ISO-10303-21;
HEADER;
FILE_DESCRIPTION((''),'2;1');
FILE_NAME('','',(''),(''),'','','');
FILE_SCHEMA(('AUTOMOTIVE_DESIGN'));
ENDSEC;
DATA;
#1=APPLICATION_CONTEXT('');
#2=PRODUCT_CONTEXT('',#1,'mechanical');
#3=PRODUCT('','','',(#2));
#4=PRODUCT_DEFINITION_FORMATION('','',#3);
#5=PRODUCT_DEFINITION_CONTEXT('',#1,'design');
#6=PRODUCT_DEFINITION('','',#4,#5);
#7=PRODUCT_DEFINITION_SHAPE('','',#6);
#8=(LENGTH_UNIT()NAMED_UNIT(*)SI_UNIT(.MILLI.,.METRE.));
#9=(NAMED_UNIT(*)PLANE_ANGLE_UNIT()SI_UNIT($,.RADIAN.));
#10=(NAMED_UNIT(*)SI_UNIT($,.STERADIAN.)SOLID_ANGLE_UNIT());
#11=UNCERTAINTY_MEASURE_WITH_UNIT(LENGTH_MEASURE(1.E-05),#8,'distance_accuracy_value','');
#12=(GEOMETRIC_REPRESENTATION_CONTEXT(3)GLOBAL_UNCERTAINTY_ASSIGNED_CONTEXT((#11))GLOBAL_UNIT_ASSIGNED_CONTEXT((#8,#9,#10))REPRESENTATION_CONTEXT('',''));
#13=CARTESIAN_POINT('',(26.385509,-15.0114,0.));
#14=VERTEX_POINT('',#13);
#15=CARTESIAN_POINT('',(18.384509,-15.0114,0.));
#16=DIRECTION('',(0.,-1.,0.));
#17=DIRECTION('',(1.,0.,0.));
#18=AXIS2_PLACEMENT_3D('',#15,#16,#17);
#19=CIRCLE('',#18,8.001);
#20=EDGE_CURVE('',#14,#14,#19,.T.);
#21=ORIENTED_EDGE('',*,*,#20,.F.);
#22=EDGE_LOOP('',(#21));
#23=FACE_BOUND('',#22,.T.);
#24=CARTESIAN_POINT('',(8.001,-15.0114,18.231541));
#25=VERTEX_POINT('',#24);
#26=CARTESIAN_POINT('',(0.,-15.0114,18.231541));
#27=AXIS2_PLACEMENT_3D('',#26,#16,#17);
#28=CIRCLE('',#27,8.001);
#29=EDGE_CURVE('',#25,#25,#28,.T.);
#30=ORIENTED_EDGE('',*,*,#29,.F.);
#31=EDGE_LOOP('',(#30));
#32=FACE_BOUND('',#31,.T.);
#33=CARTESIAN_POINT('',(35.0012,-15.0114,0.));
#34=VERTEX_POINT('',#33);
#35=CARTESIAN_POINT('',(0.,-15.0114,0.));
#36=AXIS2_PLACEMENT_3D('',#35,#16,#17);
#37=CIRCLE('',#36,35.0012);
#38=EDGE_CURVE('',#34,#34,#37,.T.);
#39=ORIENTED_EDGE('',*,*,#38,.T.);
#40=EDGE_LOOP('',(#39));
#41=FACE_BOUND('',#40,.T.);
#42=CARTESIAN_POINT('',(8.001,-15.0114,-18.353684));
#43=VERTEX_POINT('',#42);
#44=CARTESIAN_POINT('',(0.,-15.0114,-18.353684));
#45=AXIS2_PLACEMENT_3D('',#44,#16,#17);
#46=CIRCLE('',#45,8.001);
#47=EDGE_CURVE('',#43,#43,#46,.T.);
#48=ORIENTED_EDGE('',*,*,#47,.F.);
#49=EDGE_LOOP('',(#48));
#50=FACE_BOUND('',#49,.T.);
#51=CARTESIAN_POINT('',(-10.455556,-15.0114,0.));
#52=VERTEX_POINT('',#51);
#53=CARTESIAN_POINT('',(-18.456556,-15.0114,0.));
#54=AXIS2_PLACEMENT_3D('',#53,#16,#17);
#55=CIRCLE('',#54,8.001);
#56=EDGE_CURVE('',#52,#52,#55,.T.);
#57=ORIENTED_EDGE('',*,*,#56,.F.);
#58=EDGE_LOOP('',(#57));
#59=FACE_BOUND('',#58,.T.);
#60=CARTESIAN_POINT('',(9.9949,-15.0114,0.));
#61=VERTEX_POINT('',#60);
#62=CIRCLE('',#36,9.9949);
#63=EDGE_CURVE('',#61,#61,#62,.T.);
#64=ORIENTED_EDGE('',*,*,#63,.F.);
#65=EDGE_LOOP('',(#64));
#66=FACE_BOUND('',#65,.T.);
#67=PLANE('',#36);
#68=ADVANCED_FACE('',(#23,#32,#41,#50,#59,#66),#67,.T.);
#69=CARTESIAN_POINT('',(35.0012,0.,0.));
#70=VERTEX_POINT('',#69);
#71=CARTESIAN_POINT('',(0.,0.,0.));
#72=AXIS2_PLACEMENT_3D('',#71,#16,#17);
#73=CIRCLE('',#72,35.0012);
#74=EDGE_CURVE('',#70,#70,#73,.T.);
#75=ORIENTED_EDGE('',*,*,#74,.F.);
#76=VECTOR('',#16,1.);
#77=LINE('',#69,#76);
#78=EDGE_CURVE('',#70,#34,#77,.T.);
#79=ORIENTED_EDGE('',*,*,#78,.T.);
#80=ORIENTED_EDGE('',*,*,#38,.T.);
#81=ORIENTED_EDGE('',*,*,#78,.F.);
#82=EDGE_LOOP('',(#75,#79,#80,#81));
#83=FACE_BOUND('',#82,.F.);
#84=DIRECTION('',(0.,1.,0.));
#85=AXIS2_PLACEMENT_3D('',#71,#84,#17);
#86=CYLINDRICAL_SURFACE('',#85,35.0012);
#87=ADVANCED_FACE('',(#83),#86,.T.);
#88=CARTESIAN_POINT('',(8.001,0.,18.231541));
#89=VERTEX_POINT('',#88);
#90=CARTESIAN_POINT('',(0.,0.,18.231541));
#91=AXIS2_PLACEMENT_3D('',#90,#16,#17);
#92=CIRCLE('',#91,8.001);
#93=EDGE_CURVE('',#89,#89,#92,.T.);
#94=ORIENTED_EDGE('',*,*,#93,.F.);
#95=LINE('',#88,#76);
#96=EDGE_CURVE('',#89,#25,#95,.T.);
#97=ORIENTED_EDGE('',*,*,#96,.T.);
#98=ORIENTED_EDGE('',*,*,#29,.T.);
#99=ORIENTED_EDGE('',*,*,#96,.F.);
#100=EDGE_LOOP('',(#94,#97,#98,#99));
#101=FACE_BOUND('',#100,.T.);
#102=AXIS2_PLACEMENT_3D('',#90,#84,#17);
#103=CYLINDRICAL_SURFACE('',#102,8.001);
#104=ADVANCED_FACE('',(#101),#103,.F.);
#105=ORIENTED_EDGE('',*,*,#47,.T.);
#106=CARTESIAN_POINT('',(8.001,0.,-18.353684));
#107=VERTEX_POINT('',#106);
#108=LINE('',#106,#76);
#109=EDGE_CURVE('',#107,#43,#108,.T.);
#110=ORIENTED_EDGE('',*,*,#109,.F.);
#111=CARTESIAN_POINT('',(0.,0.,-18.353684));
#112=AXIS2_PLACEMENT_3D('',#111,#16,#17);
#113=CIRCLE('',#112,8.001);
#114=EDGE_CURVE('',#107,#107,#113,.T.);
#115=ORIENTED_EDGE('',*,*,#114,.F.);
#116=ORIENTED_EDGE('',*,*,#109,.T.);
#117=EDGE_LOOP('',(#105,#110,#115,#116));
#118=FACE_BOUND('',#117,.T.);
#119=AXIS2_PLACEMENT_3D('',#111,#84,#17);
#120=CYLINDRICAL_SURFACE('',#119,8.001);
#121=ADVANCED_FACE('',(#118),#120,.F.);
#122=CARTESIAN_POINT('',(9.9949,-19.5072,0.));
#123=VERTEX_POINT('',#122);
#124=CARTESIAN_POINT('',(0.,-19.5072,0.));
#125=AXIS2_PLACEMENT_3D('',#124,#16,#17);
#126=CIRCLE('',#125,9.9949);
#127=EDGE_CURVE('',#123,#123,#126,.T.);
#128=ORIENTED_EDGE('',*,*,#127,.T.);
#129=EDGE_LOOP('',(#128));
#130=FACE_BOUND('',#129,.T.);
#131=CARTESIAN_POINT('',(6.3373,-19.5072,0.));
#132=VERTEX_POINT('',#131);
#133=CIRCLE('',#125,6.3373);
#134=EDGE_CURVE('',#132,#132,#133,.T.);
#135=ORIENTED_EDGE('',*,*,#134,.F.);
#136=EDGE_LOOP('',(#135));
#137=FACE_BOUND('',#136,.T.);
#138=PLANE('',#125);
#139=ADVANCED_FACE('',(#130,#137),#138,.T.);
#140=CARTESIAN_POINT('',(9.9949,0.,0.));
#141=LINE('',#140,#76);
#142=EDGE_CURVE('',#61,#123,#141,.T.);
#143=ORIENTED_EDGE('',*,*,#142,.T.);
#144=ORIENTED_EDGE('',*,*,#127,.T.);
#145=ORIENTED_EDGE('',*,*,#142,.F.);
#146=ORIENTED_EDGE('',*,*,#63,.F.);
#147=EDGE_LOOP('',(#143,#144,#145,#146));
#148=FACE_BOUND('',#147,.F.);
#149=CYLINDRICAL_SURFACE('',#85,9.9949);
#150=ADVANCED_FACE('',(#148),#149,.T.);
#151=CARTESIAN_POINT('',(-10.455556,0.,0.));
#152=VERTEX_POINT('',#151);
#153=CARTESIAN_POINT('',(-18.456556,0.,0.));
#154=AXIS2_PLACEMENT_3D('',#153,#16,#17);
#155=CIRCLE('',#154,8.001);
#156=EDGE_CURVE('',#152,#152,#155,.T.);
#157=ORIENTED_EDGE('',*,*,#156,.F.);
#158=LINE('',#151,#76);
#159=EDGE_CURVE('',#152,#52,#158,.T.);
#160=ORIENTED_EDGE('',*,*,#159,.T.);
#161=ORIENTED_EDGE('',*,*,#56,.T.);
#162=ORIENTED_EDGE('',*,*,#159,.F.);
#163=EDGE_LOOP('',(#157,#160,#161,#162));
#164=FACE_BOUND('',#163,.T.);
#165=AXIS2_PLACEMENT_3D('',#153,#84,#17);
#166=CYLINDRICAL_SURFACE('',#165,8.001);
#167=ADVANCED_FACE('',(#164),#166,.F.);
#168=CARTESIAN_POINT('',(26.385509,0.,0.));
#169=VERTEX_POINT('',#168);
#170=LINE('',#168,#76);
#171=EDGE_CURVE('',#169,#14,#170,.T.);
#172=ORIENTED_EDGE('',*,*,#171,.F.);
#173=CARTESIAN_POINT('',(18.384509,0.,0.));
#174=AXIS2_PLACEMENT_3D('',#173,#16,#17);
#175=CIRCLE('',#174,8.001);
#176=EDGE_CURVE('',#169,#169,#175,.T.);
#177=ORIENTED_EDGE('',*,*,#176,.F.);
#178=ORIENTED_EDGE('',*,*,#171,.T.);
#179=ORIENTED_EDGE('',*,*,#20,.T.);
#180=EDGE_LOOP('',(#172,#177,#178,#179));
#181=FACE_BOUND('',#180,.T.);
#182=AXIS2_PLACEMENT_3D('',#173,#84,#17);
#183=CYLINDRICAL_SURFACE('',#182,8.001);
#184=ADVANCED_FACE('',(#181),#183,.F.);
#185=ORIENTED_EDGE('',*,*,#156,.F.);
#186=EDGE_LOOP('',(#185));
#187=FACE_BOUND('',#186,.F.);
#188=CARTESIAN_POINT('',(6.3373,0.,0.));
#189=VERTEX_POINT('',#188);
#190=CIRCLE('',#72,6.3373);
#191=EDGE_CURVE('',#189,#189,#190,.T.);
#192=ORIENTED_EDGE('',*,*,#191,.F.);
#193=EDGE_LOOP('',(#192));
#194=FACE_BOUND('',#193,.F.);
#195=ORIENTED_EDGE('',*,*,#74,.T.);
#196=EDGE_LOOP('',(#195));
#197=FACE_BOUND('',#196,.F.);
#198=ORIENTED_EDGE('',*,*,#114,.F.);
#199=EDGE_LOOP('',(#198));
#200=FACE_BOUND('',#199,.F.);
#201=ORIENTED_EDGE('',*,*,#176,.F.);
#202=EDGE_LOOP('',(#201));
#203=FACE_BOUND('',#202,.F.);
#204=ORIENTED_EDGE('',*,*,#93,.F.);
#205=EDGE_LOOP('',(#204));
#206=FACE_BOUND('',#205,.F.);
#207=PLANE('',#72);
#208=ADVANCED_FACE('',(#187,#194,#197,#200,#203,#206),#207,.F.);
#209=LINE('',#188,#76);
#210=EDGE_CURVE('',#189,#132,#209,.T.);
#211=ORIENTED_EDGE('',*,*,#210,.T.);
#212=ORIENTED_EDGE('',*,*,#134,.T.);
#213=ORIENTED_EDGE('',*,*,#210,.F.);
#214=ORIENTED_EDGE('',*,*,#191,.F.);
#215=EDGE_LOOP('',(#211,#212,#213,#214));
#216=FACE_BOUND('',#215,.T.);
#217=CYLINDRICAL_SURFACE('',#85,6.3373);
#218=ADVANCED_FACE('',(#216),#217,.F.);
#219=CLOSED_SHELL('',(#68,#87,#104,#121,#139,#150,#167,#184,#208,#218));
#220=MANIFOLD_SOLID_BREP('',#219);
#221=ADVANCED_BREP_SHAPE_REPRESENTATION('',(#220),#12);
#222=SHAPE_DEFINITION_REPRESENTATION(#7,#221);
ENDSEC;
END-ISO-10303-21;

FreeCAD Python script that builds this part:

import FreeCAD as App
import Part
import Sketcher

V = App.Vector
Q = App.Units.Quantity

doc = App.newDocument("Part")
params = doc.addObject("Spreadsheet::Sheet", "Params")
for row, (alias, value) in enumerate([
    ("sketch1_diameter", "0.63 in"),
    ("sketch1_diameter2", "2.756 in"),
    ("sketch1_diameter3", "0.787 in"),
    ("pad1_length", "0.591 in"),
    ("sketch2_diameter", "0.787 in"),
    ("sketch2_diameter2", "0.499 in"),
    ("pad2_length", "0.768 in"),
], start=1):
    params.set(f"A{row}", alias)
    params.set(f"B{row}", "=" + value)
    params.setAlias(f"B{row}", alias)

body = doc.addObject("PartDesign::Body", "Body")

# Sketch on XZ plane
sketch1 = doc.addObject("Sketcher::SketchObject", "Sketch")
body.addObject(sketch1)
sketch1.AttachmentSupport = (doc.XZ_Plane, [""])
sketch1.MapMode = "FlatFace"
sketch1.addGeometry([
    Part.Circle(V(0, 0, 0), V(0, 0, 1), 35),  # 0
    Part.Circle(V(0, -18, 0), V(0, 0, 1), 8),  # 1
    Part.Circle(V(-18, 0, 0), V(0, 0, 1), 8),  # 2
    Part.Circle(V(0, 0, 0), V(0, 0, 1), 10),  # 3
    Part.Circle(V(18, 0, 0), V(0, 0, 1), 8),  # 4
    Part.Circle(V(0, 18, 0), V(0, 0, 1), 8),  # 5
], False)
sketch1.addConstraint([
    Sketcher.Constraint("Coincident", 0, 3, -1, 1),
    Sketcher.Constraint("Coincident", 3, 3, -1, 1),
    Sketcher.Constraint("Equal", 1, 2),
    Sketcher.Constraint("Equal", 2, 4),
    Sketcher.Constraint("Equal", 4, 5),
    Sketcher.Constraint("PointOnObject", 1, 3, -2),
    Sketcher.Constraint("PointOnObject", 2, 3, -1),
    Sketcher.Constraint("PointOnObject", 4, 3, -1),
    Sketcher.Constraint("PointOnObject", 5, 3, -2),
    Sketcher.Constraint("Diameter", 1, Q("0.63 in")),
    Sketcher.Constraint("Diameter", 0, Q("2.756 in")),
    Sketcher.Constraint("Diameter", 3, Q("0.787 in")),
    Sketcher.Constraint("DistanceX", -1, 1, 4, 3, 18.384509),
    Sketcher.Constraint("DistanceY", -1, 1, 5, 3, 18.231541),
    Sketcher.Constraint("DistanceY", 1, 3, -1, 1, 18.353684),
    Sketcher.Constraint("DistanceX", 2, 3, -1, 1, 18.456556),
])
sketch1.setExpression("Constraints[9]", "Params.sketch1_diameter")
sketch1.setExpression("Constraints[10]", "Params.sketch1_diameter2")
sketch1.setExpression("Constraints[11]", "Params.sketch1_diameter3")
pad1 = doc.addObject("PartDesign::Pad", "Pad")
body.addObject(pad1)
pad1.Profile = sketch1
pad1.setExpression("Length", "Params.pad1_length")

# Sketch on XZ plane
sketch2 = doc.addObject("Sketcher::SketchObject", "Sketch001")
body.addObject(sketch2)
sketch2.AttachmentSupport = (doc.XZ_Plane, [""])
sketch2.MapMode = "FlatFace"
sketch2.addGeometry([
    Part.Circle(V(0, 0, 0), V(0, 0, 1), 10),
    Part.Circle(V(0, 0, 0), V(0, 0, 1), 6),
], False)
sketch2.addConstraint([
    Sketcher.Constraint("Coincident", 0, 3, -1, 1),
    Sketcher.Constraint("Coincident", 1, 3, -1, 1),
    Sketcher.Constraint("Diameter", 0, Q("0.787 in")),
    Sketcher.Constraint("Diameter", 1, Q("0.499 in")),
])
sketch2.setExpression("Constraints[2]", "Params.sketch2_diameter")
sketch2.setExpression("Constraints[3]", "Params.sketch2_diameter2")
pad2 = doc.addObject("PartDesign::Pad", "Pad001")
body.addObject(pad2)
pad2.Profile = sketch2
pad2.setExpression("Length", "Params.pad2_length")

doc.recompute()
